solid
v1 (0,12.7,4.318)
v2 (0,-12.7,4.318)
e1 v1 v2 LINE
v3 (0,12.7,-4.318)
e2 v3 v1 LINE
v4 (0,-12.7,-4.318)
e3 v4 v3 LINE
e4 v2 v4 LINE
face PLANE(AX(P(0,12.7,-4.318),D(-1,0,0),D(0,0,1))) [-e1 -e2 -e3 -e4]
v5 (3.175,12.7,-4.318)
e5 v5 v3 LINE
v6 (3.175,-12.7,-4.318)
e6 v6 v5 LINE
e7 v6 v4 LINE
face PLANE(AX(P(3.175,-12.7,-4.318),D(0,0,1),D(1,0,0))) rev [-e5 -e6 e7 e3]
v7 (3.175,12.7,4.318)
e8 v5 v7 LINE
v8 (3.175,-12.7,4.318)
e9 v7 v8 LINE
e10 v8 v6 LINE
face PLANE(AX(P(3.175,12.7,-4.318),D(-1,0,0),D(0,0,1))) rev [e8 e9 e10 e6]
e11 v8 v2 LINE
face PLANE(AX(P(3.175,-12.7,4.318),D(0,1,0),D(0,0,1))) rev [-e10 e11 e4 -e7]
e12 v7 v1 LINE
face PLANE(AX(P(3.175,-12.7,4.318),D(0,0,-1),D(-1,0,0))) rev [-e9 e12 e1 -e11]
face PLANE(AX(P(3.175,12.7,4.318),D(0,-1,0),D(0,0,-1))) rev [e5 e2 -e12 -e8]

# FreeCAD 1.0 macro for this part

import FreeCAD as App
import Part
import Sketcher
from FreeCAD import Vector
Q = App.Units.Quantity

doc = App.newDocument("Part")
params = doc.addObject("Spreadsheet::Sheet", "Params")
for row, (alias, value) in enumerate([
    ("sketch1_width", "1 in"),
    ("sketch1_height", "0.34 in"),
    ("pad1_length", "0.125 in"),
], start=1):
    params.set(f"A{row}", alias)
    params.set(f"B{row}", "=" + value)
    params.setAlias(f"B{row}", alias)

body = doc.addObject("PartDesign::Body", "Body")

# Sketch on YZ plane
sketch1 = body.newObject("Sketcher::SketchObject", "Sketch")
sketch1.AttachmentSupport = (doc.getObject("YZ_Plane"), [""])
sketch1.MapMode = "FlatFace"
sketch1.addGeometry([
    Part.LineSegment(Vector(13, 4, 0), Vector(-13, 4, 0)),
    Part.LineSegment(Vector(-13, 4, 0), Vector(-13, -4, 0)),
    Part.LineSegment(Vector(-13, -4, 0), Vector(13, -4, 0)),
    Part.LineSegment(Vector(13, -4, 0), Vector(13, 4, 0)),
], False)
sketch1.addConstraint([
    Sketcher.Constraint("Coincident", 0, 2, 1, 1),
    Sketcher.Constraint("Coincident", 1, 2, 2, 1),
    Sketcher.Constraint("Coincident", 2, 2, 3, 1),
    Sketcher.Constraint("Coincident", 3, 2, 0, 1),
    Sketcher.Constraint("Horizontal", 0),
    Sketcher.Constraint("Vertical", 1),
    Sketcher.Constraint("Horizontal", 2),
    Sketcher.Constraint("Vertical", 3),
    Sketcher.Constraint("Symmetric", 0, 2, 2, 2, -1, 1),
    Sketcher.Constraint("DistanceX", 0, 2, 0, 1, Q("1 in")),
    Sketcher.Constraint("DistanceY", 1, 2, 1, 1, Q("0.34 in")),
])
sketch1.setExpression("Constraints[9]", "Params.sketch1_width")
sketch1.setExpression("Constraints[10]", "Params.sketch1_height")
pad1 = body.newObject("PartDesign::Pad", "Pad")
pad1.Profile = sketch1
pad1.setExpression("Length", "Params.pad1_length")

doc.recompute()
